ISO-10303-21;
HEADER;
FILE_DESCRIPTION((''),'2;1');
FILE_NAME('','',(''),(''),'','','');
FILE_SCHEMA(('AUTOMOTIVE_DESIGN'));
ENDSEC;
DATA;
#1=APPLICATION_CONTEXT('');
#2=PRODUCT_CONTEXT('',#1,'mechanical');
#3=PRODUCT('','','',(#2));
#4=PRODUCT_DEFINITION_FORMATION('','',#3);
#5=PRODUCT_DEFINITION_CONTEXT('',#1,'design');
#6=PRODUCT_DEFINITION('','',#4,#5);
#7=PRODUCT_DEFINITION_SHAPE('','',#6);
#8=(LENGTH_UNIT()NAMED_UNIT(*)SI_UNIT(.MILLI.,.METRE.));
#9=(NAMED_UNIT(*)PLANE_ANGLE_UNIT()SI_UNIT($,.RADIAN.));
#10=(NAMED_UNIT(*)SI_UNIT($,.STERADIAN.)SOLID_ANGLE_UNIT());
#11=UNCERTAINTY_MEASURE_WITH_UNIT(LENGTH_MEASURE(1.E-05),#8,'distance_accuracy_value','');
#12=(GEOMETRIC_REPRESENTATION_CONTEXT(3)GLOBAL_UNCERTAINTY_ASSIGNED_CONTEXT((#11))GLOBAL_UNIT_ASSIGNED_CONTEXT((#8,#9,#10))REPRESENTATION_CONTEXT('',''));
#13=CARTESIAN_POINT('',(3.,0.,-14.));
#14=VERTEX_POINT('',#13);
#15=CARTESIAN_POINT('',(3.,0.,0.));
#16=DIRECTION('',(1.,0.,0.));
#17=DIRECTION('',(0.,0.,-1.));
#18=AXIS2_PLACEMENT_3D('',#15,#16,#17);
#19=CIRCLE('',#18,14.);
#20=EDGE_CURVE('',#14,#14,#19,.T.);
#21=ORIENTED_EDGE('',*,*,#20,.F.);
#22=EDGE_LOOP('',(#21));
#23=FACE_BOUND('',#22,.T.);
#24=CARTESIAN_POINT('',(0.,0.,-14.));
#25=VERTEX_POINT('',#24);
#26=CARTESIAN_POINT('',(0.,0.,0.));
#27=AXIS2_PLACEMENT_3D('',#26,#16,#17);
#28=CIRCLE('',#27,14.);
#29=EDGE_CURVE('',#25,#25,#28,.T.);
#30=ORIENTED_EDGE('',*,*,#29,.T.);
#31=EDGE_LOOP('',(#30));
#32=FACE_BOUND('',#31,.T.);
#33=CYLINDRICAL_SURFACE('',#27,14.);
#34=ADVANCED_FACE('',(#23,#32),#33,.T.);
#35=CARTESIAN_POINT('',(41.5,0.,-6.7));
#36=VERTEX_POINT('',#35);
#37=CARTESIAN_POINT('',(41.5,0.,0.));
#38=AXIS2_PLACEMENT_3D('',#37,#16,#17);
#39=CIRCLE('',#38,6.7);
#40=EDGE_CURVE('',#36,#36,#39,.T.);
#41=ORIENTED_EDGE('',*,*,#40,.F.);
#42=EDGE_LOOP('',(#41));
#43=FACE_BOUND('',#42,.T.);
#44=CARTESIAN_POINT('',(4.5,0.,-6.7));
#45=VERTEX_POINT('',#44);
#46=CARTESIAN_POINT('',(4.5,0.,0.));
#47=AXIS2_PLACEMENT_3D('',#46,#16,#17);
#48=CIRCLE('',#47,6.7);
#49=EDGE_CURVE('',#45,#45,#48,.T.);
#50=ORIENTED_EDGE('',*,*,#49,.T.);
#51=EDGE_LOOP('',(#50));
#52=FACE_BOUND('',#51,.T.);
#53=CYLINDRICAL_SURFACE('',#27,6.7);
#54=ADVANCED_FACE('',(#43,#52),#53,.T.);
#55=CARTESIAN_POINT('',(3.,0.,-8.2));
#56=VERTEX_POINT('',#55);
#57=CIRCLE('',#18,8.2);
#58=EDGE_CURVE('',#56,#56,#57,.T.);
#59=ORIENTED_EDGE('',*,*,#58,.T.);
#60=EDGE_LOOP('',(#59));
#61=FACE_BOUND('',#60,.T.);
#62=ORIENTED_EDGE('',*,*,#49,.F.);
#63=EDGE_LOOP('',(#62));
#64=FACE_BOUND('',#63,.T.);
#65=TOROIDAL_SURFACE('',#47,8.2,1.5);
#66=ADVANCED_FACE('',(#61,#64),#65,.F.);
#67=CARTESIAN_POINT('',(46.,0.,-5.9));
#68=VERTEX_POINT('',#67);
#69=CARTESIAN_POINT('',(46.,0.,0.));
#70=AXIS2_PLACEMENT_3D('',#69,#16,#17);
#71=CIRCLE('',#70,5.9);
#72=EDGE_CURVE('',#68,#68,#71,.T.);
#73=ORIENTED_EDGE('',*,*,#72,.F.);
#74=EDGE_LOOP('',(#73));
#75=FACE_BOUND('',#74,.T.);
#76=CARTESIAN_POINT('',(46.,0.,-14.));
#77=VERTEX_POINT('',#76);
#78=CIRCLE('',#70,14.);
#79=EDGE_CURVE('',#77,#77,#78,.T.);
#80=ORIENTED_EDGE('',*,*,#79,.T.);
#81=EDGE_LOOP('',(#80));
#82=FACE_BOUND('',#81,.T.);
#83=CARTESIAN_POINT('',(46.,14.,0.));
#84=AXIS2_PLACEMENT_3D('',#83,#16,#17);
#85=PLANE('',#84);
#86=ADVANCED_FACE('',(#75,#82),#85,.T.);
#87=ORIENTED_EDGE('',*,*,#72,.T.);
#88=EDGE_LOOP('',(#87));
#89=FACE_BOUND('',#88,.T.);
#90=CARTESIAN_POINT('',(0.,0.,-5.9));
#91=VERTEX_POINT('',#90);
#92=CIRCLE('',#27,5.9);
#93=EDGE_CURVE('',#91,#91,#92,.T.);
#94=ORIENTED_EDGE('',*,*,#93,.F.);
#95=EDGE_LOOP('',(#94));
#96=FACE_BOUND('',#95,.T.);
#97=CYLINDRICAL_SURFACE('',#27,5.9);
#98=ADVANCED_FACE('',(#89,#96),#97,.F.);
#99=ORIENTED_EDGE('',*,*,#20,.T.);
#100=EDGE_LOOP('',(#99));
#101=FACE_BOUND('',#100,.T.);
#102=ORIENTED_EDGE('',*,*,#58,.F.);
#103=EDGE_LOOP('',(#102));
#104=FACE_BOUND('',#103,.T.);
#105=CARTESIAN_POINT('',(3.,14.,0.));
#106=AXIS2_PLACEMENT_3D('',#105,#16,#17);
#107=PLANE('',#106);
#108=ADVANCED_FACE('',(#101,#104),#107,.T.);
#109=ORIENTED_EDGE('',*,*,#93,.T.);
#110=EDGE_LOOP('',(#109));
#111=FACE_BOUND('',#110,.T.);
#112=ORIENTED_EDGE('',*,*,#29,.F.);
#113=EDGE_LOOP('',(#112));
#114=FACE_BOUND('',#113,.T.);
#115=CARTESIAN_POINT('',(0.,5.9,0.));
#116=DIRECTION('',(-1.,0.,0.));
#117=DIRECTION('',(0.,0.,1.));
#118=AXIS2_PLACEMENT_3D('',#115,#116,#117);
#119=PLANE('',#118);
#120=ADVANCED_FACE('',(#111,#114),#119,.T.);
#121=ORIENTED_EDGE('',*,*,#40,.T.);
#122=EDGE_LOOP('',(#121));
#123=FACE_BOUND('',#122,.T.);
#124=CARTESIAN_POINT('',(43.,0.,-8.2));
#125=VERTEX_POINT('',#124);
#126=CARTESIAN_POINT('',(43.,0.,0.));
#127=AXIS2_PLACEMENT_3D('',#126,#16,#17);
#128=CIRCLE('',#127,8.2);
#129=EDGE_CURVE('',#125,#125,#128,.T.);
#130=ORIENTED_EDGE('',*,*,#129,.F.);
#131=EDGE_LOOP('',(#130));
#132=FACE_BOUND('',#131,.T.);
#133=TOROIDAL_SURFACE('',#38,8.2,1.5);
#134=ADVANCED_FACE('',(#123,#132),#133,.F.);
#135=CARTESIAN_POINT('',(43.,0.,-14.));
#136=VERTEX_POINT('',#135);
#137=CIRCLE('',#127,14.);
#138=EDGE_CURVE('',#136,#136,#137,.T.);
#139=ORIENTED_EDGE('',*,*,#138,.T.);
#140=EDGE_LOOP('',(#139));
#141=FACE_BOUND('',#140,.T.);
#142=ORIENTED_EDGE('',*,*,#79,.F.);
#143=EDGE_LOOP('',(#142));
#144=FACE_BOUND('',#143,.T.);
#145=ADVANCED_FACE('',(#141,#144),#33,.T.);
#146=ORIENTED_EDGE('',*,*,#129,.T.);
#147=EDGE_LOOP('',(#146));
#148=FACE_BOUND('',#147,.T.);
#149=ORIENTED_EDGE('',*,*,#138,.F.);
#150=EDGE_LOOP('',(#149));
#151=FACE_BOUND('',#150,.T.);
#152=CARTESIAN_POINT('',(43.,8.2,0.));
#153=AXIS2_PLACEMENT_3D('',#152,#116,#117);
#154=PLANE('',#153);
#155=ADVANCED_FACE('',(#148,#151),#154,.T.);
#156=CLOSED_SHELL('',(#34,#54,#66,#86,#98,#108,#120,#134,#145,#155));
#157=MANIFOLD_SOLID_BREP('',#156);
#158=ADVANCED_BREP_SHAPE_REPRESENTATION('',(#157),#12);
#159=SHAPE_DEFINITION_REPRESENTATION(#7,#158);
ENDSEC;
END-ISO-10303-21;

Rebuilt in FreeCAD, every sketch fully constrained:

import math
import FreeCAD as App
import Part
import Sketcher
from FreeCAD import Vector

doc = App.newDocument("Part")
body = doc.addObject("PartDesign::Body", "Body")

sketch1 = body.newObject("Sketcher::SketchObject", "Sketch")
sketch1.AttachmentSupport = (doc.getObject("XY_Plane"), [""])
sketch1.MapMode = "FlatFace"
sketch1.addGeometry([
    Part.LineSegment(Vector(0, 14, 0), Vector(0, 5.9, 0)),
    Part.LineSegment(Vector(0, 5.9, 0), Vector(46, 5.9, 0)),
    Part.LineSegment(Vector(46, 5.9, 0), Vector(46, 14, 0)),
    Part.LineSegment(Vector(46, 14, 0), Vector(43, 14, 0)),
    Part.LineSegment(Vector(43, 14, 0), Vector(43, 8.2, 0)),
    Part.ArcOfCircle(Part.Circle(Vector(41.5, 8.2, 0), Vector(0, 0, 1), 1.5), math.radians(-90), math.radians(0)),
    Part.LineSegment(Vector(41.5, 6.7, 0), Vector(4.5, 6.7, 0)),
    Part.ArcOfCircle(Part.Circle(Vector(4.5, 8.2, 0), Vector(0, 0, 1), 1.5), math.radians(180), math.radians(270)),
    Part.LineSegment(Vector(3, 8.2, 0), Vector(3, 14, 0)),
    Part.LineSegment(Vector(3, 14, 0), Vector(0, 14, 0)),
], False)
sketch1.addConstraint([
    Sketcher.Constraint("Coincident", 0, 2, 1, 1),
    Sketcher.Constraint("Coincident", 1, 2, 2, 1),
    Sketcher.Constraint("Coincident", 2, 2, 3, 1),
    Sketcher.Constraint("Coincident", 3, 2, 4, 1),
    Sketcher.Constraint("Tangent", 4, 2, 5, 2),
    Sketcher.Constraint("Tangent", 5, 1, 6, 1),
    Sketcher.Constraint("Tangent", 6, 2, 7, 2),
    Sketcher.Constraint("Tangent", 7, 1, 8, 1),
    Sketcher.Constraint("Coincident", 8, 2, 9, 1),
    Sketcher.Constraint("Coincident", 9, 2, 0, 1),
    Sketcher.Constraint("Vertical", 0),
    Sketcher.Constraint("Horizontal", 1),
    Sketcher.Constraint("Vertical", 2),
    Sketcher.Constraint("Horizontal", 3),
    Sketcher.Constraint("Vertical", 4),
    Sketcher.Constraint("Horizontal", 6),
    Sketcher.Constraint("Vertical", 8),
    Sketcher.Constraint("Horizontal", 9),
    Sketcher.Constraint("Equal", 5, 7),
    Sketcher.Constraint("PointOnObject", 0, 2, -2),
    Sketcher.Constraint("Horizontal", 3, 2, 8, 2),
    Sketcher.Constraint("Equal", 3, 9),
    Sketcher.Constraint("Radius", 5, 1.5),
    Sketcher.Constraint("DistanceX", 1, 1, 1, 2, 46.0),
    Sketcher.Constraint("DistanceX", 3, 2, 3, 1, 3.0),
    Sketcher.Constraint("DistanceY", 0, 2, 0, 1, 8.1),
    Sketcher.Constraint("DistanceY", 4, 2, 4, 1, 5.8),
    Sketcher.Constraint("DistanceY", -1, 1, 2, 2, 14.0),
])
revolution = body.newObject("PartDesign::Revolution", "Revolution")
revolution.Profile = sketch1
revolution.ReferenceAxis = (sketch1, ["H_Axis"])
revolution.Angle = 360

doc.recompute()
